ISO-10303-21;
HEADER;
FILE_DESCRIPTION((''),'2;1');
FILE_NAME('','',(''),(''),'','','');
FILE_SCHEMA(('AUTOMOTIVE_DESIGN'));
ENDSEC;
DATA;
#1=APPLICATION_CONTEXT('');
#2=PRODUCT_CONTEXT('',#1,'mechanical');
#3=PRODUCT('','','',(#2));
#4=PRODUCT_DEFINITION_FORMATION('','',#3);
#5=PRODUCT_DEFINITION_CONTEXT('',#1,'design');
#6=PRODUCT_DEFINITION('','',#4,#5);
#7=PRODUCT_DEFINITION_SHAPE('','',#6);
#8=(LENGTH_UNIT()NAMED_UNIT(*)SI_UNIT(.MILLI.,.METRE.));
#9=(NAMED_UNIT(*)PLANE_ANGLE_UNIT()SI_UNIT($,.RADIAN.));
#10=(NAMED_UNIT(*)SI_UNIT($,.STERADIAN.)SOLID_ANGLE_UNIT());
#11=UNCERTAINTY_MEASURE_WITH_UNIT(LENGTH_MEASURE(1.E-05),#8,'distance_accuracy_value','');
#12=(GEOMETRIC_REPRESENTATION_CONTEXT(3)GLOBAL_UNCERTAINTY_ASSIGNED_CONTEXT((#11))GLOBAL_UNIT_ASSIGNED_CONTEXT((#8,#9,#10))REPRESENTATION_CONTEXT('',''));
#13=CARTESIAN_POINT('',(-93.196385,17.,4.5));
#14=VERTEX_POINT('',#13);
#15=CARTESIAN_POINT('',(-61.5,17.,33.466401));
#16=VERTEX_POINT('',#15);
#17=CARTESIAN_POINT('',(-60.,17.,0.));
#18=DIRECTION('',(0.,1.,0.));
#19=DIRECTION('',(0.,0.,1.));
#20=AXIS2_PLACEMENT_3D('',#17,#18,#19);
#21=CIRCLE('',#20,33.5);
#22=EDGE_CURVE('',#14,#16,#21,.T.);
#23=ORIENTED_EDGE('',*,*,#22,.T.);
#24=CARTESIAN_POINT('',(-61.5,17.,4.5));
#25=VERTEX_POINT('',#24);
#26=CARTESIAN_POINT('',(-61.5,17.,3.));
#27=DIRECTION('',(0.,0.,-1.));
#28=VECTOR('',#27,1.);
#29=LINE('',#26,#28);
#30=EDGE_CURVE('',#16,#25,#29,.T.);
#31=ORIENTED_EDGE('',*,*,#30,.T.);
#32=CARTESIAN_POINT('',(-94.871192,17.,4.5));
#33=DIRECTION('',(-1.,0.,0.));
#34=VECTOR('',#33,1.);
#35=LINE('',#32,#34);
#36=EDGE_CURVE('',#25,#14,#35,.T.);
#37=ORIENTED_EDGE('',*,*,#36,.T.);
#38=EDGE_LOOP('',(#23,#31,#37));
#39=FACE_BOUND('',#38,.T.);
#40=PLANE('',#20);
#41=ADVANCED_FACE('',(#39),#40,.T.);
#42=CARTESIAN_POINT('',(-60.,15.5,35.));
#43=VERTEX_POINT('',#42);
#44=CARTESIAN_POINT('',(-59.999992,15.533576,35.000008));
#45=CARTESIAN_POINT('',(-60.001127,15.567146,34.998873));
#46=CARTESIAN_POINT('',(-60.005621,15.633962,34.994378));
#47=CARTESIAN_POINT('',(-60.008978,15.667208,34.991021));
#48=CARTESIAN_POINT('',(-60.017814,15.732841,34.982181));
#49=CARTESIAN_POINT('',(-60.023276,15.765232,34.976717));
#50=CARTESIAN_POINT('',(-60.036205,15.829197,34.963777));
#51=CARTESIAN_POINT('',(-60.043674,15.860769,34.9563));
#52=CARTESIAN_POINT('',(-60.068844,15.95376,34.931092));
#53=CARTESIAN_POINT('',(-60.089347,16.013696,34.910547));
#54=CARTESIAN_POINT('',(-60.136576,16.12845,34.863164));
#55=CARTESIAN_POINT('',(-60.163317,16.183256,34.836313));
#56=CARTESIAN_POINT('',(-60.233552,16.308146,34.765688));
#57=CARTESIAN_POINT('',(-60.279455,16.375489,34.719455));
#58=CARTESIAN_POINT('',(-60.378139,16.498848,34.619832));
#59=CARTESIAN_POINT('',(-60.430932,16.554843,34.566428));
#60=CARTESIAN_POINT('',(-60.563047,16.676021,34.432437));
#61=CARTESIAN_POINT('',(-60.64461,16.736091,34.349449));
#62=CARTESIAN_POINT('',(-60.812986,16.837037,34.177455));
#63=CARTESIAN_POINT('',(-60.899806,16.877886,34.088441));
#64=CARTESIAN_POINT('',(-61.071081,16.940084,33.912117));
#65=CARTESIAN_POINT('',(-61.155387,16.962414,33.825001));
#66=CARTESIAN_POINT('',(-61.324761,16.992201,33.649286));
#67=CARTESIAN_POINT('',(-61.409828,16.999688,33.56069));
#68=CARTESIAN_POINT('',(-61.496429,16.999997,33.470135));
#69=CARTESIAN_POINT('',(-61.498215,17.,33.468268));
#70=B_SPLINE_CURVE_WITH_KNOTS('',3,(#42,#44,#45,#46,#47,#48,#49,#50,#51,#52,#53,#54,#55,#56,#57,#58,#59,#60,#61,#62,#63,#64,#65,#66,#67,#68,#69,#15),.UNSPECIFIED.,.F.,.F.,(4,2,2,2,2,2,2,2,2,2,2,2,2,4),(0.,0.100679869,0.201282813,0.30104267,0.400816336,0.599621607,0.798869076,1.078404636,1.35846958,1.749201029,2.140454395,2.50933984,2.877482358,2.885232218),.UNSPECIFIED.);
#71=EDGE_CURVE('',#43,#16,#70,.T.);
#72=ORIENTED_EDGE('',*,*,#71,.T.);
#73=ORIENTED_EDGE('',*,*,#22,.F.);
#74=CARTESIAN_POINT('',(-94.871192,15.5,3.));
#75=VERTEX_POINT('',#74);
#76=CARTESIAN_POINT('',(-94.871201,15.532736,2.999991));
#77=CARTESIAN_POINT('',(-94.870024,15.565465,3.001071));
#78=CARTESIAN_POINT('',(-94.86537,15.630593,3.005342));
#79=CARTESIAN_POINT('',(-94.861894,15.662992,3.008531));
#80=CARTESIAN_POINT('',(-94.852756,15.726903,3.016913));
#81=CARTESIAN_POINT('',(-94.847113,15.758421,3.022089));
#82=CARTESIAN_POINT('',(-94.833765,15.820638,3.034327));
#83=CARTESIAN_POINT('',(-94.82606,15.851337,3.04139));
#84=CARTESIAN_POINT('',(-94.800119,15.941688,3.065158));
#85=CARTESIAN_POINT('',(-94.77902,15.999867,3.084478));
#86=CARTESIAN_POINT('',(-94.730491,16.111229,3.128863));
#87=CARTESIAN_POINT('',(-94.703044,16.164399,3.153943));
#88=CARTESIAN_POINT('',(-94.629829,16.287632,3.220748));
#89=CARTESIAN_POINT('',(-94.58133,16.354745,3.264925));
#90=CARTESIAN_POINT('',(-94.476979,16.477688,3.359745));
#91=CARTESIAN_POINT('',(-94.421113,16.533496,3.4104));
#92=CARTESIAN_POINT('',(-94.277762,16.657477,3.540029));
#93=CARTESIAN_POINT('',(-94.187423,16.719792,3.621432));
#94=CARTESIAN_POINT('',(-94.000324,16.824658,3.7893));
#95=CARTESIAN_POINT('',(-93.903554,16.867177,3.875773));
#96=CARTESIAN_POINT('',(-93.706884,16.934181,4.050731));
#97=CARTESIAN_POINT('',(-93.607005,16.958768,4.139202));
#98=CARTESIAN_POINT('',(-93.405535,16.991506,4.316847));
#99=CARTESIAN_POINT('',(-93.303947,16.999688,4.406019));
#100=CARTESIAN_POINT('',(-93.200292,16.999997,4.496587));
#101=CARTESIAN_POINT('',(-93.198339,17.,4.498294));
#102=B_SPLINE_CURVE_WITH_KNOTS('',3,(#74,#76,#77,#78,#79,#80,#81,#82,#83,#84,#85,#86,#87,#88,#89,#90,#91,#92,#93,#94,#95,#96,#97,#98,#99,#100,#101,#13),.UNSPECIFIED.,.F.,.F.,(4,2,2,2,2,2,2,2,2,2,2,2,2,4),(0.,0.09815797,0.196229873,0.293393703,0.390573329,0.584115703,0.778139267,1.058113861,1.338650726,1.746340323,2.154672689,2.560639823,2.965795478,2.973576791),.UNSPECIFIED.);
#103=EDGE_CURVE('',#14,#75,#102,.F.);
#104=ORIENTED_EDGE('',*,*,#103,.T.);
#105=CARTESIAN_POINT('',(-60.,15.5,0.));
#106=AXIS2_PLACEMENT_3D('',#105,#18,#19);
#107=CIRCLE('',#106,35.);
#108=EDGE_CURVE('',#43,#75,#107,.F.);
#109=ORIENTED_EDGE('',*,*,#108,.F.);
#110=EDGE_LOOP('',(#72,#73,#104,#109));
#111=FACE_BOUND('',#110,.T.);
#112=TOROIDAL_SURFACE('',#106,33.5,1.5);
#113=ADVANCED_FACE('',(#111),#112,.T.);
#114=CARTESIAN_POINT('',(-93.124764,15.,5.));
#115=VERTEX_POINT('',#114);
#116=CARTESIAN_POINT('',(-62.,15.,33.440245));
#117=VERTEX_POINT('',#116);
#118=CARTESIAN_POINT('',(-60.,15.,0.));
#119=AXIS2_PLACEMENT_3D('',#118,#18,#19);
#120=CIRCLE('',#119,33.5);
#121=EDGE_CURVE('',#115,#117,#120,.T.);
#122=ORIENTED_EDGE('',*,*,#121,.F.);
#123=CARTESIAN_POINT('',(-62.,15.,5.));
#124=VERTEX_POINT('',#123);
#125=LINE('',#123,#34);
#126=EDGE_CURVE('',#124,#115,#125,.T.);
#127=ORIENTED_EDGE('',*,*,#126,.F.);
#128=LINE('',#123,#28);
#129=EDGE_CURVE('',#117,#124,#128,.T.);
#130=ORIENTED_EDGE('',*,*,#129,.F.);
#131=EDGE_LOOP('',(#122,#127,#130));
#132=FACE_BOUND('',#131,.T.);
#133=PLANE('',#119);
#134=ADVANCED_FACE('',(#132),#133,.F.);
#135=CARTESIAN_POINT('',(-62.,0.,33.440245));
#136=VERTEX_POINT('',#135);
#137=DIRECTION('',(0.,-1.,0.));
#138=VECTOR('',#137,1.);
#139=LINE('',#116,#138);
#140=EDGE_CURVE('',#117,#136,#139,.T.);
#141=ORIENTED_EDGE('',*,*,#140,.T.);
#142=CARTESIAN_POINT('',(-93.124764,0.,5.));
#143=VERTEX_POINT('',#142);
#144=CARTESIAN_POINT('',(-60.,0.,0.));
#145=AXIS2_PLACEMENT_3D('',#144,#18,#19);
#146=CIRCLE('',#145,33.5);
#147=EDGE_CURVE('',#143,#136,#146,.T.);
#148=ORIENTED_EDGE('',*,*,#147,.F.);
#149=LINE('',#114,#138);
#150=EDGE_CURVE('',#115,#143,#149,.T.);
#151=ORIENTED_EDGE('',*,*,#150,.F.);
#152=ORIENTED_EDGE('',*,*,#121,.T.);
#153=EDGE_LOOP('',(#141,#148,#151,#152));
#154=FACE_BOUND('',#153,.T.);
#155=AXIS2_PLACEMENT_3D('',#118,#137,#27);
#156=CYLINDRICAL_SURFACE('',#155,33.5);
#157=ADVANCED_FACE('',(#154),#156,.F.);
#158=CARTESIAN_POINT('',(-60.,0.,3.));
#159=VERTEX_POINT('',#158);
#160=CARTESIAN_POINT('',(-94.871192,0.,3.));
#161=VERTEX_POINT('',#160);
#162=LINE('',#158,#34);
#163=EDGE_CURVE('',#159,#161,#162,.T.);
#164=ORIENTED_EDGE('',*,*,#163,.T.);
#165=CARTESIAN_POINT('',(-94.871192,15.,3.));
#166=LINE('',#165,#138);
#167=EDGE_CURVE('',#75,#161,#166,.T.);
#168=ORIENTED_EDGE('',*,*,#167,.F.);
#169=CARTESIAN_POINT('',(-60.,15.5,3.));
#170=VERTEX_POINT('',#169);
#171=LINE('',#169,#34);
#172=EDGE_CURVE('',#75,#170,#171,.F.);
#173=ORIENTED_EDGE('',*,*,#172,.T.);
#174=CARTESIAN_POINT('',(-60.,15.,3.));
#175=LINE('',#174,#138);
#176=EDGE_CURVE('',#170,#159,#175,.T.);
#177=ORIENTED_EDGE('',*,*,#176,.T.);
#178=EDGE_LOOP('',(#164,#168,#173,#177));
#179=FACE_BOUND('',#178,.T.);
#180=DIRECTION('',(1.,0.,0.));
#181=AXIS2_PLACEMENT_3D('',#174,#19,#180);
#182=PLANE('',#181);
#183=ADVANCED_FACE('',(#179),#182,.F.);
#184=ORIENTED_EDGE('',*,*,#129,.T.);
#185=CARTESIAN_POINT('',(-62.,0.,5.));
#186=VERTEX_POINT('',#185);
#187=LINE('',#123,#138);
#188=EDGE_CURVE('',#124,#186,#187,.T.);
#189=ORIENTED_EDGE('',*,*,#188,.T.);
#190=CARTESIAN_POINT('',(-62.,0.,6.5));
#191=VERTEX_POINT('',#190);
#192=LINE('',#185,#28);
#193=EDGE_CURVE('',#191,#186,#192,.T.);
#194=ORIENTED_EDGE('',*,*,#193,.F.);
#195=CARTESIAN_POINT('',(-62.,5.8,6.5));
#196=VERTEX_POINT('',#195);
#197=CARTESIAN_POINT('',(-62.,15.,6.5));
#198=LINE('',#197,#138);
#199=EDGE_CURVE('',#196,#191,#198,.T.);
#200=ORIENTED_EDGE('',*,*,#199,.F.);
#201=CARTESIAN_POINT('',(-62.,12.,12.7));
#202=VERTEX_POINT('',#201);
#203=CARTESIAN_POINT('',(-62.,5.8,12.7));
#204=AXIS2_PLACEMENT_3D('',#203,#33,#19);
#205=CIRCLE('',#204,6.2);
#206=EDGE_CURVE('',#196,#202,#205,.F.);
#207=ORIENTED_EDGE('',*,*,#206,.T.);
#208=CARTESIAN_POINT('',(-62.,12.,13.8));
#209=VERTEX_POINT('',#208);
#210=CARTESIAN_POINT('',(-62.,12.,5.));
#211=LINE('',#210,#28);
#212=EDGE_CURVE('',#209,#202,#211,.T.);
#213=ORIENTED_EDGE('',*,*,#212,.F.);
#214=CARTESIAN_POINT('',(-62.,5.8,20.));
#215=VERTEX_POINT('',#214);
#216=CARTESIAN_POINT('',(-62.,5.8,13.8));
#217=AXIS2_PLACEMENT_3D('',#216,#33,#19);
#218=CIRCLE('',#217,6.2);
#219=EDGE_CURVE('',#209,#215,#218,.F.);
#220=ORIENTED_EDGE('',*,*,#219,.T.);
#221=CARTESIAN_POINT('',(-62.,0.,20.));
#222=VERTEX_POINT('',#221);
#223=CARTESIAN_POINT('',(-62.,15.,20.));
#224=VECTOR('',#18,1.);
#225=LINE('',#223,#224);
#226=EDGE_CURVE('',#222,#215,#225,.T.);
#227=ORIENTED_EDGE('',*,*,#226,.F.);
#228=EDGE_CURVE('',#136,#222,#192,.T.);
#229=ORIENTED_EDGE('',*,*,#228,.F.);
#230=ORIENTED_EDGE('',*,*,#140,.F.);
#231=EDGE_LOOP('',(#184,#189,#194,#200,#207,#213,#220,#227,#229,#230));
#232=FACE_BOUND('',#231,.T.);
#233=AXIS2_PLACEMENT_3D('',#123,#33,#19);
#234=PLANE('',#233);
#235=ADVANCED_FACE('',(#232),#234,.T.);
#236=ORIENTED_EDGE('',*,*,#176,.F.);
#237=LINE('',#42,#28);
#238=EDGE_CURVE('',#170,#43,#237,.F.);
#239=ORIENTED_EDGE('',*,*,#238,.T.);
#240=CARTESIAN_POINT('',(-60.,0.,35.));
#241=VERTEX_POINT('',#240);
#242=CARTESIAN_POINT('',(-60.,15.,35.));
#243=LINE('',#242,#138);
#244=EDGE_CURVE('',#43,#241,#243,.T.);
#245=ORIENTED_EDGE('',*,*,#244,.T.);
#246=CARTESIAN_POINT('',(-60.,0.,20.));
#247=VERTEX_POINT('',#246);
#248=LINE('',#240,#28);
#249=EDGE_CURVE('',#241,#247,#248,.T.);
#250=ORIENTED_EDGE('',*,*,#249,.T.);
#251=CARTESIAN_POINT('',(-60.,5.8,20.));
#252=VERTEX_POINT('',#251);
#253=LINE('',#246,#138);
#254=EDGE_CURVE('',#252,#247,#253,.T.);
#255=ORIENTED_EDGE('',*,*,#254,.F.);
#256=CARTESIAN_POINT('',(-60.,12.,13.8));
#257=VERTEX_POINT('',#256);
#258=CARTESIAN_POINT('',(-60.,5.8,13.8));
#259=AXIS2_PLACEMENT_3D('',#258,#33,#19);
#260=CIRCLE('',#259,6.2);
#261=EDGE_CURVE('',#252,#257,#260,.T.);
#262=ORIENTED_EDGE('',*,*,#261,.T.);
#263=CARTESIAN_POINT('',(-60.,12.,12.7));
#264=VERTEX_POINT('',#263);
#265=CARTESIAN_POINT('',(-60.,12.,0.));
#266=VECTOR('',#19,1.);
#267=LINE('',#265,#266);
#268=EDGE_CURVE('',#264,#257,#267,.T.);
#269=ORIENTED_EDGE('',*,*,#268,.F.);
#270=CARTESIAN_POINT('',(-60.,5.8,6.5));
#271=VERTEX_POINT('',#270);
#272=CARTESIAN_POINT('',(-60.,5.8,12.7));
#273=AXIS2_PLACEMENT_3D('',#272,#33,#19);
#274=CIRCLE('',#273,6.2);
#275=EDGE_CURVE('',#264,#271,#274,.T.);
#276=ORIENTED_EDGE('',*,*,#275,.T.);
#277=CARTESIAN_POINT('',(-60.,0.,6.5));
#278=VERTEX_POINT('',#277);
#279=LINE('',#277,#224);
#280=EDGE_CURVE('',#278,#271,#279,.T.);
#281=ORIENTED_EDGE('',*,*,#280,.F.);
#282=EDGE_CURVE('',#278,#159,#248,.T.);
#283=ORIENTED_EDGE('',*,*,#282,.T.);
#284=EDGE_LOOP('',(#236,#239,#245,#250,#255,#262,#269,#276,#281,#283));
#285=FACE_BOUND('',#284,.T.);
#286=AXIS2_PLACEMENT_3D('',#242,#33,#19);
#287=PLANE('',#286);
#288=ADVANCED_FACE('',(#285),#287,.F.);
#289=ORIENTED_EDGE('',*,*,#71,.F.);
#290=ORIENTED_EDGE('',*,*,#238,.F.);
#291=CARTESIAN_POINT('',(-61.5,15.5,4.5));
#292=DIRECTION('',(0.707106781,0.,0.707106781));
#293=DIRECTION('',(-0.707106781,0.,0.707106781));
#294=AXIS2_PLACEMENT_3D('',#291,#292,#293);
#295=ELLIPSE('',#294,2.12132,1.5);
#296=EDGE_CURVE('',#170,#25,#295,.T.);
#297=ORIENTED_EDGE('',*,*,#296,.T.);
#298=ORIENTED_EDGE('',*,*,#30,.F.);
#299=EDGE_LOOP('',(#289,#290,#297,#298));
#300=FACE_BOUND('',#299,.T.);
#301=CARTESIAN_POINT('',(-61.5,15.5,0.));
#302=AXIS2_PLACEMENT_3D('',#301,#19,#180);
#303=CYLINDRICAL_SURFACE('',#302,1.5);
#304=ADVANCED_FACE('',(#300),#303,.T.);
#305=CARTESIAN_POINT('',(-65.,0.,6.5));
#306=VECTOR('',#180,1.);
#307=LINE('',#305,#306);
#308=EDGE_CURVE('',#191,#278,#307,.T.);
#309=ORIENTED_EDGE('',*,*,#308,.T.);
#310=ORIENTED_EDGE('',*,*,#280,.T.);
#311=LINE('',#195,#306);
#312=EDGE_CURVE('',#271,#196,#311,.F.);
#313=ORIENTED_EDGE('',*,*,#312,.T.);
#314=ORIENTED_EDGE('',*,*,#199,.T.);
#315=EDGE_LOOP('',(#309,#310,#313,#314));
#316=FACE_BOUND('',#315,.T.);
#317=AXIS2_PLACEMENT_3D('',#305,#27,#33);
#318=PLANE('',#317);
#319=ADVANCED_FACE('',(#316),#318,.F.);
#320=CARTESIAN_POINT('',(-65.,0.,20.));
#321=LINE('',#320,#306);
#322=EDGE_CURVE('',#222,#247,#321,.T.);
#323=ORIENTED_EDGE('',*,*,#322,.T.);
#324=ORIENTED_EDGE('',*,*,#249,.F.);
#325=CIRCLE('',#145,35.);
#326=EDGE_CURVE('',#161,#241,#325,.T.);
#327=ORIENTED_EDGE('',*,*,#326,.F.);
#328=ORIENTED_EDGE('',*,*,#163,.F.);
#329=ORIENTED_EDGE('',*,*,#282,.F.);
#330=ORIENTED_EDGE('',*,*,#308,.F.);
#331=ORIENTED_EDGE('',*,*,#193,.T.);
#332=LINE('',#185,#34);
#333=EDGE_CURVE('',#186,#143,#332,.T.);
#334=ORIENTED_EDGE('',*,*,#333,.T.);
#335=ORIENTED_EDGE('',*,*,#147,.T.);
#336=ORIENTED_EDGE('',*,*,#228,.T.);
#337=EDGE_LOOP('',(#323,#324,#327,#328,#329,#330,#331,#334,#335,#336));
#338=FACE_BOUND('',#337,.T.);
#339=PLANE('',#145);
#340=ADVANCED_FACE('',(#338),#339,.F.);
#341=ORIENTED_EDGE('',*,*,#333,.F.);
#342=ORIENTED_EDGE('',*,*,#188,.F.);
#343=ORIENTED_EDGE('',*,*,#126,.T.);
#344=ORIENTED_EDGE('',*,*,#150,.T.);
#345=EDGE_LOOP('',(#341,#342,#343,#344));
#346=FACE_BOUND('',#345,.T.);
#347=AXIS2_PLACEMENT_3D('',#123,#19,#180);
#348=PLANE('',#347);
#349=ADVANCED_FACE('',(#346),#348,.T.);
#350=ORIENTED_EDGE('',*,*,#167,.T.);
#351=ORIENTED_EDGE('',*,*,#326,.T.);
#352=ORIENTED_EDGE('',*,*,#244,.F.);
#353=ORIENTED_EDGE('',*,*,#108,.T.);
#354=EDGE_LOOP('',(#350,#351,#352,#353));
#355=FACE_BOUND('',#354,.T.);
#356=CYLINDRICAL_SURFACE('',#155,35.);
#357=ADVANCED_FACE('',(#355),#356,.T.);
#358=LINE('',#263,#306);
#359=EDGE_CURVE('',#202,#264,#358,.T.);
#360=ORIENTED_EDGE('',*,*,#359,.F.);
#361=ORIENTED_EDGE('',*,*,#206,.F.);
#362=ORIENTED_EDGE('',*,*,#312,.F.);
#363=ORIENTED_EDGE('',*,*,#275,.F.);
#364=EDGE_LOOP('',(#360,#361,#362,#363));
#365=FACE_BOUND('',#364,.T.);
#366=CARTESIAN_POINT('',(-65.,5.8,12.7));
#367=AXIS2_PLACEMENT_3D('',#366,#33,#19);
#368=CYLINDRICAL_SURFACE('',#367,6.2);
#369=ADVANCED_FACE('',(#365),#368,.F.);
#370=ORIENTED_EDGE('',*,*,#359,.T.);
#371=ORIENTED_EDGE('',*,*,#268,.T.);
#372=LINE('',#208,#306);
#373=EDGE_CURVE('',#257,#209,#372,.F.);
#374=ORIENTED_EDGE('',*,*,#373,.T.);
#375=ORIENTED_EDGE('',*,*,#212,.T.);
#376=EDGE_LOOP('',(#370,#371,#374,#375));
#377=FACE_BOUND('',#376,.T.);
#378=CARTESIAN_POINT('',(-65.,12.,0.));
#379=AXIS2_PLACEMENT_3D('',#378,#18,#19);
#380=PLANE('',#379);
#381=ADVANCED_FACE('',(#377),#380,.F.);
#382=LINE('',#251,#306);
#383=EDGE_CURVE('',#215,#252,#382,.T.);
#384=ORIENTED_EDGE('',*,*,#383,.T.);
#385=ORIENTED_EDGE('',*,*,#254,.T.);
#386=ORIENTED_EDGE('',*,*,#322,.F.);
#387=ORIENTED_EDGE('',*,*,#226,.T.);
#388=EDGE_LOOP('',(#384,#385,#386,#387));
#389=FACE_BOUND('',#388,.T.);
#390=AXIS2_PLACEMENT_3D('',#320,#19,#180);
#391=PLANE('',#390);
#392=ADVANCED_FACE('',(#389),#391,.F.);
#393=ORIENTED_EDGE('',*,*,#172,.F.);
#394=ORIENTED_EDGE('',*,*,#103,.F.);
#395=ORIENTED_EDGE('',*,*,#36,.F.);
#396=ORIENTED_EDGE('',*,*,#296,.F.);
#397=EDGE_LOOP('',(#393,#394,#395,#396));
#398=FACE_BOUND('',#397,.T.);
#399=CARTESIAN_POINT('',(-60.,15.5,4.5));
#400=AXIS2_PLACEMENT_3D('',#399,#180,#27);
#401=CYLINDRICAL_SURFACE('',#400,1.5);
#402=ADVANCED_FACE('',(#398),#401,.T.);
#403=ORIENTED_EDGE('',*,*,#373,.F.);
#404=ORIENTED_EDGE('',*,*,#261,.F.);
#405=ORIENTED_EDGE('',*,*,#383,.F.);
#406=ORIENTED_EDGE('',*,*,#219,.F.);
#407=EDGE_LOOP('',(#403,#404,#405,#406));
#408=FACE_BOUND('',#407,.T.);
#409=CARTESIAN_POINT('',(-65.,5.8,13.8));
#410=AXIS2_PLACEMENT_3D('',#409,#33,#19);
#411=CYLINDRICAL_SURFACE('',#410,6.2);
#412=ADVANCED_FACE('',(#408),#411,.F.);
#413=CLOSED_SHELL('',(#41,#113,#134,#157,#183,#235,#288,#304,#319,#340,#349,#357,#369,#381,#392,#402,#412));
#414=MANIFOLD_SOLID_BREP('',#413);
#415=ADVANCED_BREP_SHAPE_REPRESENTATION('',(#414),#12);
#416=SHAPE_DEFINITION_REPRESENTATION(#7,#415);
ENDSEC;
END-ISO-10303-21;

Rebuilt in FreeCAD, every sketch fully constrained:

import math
import FreeCAD as App
import Part
import Sketcher
from FreeCAD import Vector


def edges_at(feature, points):
    """Names of the edges that pass closest to the given points."""
    edges = feature.Shape.Edges
    near = lambda p: min(range(len(edges)), key=lambda i: edges[i].distToShape(Part.Vertex(*p))[0])
    return sorted({f"Edge{near(p) + 1}" for p in points})


def add_polygon(sketch, points):
    """Adds a closed chain of lines whose ends are joined by coincident constraints."""
    first, n = sketch.GeometryCount, len(points)
    for a, b in zip(points, points[1:] + points[:1]):
        sketch.addGeometry(Part.LineSegment(App.Vector(*a, 0), App.Vector(*b, 0)), False)
    for i in range(n):
        sketch.addConstraint(Sketcher.Constraint("Coincident", first + i, 2, first + (i + 1) % n, 1))

doc = App.newDocument("Part")
body = doc.addObject("PartDesign::Body", "Body")

# Sketch on XZ plane
sketch1 = body.newObject("Sketcher::SketchObject", "Sketch")
sketch1.AttachmentSupport = (doc.getObject("XZ_Plane"), [""])
sketch1.MapMode = "FlatFace"
sketch1.addGeometry([
    Part.LineSegment(Vector(-60, 3, 0), Vector(-95, 3, 0)),  # 0
    Part.ArcOfCircle(Part.Circle(Vector(-60, 0, 0), Vector(0, 0, 1), 35), math.radians(90), math.radians(175)),  # 1
    Part.LineSegment(Vector(-60, 35, 0), Vector(-60, 3, 0)),  # 2
    Part.LineSegment(Vector(-93, 5, 0), Vector(-62, 5, 0)),  # 3
    Part.LineSegment(Vector(-62, 5, 0), Vector(-62, 33, 0)),  # 4
    Part.ArcOfCircle(Part.Circle(Vector(-60, 0, 0), Vector(0, 0, 1), 33), math.radians(93), math.radians(171)),  # 5
], False)
sketch1.addConstraint([
    Sketcher.Constraint("Coincident", 0, 2, 1, 2),
    Sketcher.Constraint("Coincident", 1, 1, 2, 1),
    Sketcher.Constraint("Coincident", 2, 2, 0, 1),
    Sketcher.Constraint("Coincident", 3, 2, 4, 1),
    Sketcher.Constraint("Coincident", 4, 2, 5, 1),
    Sketcher.Constraint("Coincident", 5, 2, 3, 1),
    Sketcher.Constraint("Horizontal", 0),
    Sketcher.Constraint("Vertical", 2),
    Sketcher.Constraint("Horizontal", 3),
    Sketcher.Constraint("Vertical", 4),
    Sketcher.Constraint("Coincident", 5, 3, 1, 3),
    Sketcher.Constraint("PointOnObject", 1, 3, -1),
    Sketcher.Constraint("Vertical", 5, 3, 1, 1),
    Sketcher.Constraint("Radius", 1, 35.0),
    Sketcher.Constraint("Radius", 5, 33.5),
    Sketcher.Constraint("DistanceY", 2, 2, 2, 1, 32.0),
    Sketcher.Constraint("DistanceX", 1, 3, -1, 1, 60.0),
    Sketcher.Constraint("DistanceX", 3, 2, -1, 1, 62.0),
    Sketcher.Constraint("DistanceY", -1, 1, 3, 2, 5.0),
])
pad1 = body.newObject("PartDesign::Pad", "Pad")
pad1.Profile = sketch1
pad1.Length = 15
pad1.Reversed = True

# Sketch on XZ plane
sketch2 = body.newObject("Sketcher::SketchObject", "Sketch001")
sketch2.AttachmentSupport = (doc.getObject("XZ_Plane"), [""])
sketch2.MapMode = "FlatFace"
sketch2.AttachmentOffset = App.Placement(Vector(0, 0, -15), App.Rotation())
sketch2.addGeometry([
    Part.LineSegment(Vector(-60, 3, 0), Vector(-95, 3, 0)),
    Part.ArcOfCircle(Part.Circle(Vector(-60, 0, 0), Vector(0, 0, 1), 35), math.radians(90), math.radians(175)),
    Part.LineSegment(Vector(-60, 35, 0), Vector(-60, 3, 0)),
], False)
sketch2.addConstraint([
    Sketcher.Constraint("Coincident", 0, 2, 1, 2),
    Sketcher.Constraint("Coincident", 1, 1, 2, 1),
    Sketcher.Constraint("Coincident", 2, 2, 0, 1),
    Sketcher.Constraint("Horizontal", 0),
    Sketcher.Constraint("Vertical", 2),
    Sketcher.Constraint("PointOnObject", 1, 3, -1),
    Sketcher.Constraint("Radius", 1, 35.0),
    Sketcher.Constraint("DistanceY", 2, 2, 2, 1, 32.0),
    Sketcher.Constraint("DistanceX", 1, 3, -1, 1, 60.0),
    Sketcher.Constraint("DistanceX", 1, 1, -1, 1, 60.0),
])
pad2 = body.newObject("PartDesign::Pad", "Pad001")
pad2.Profile = sketch2
pad2.Length = 2
pad2.Reversed = True
doc.recompute()

fillet = body.newObject("PartDesign::Fillet", "Fillet")
fillet.Base = (pad2, edges_at(pad2, [(-60, 17, 19), (-77.436, 17, 3), (-83.664, 17, 25.788)]))
fillet.Radius = 1.5

# Sketch on YZ plane
sketch3 = body.newObject("Sketcher::SketchObject", "Sketch002")
sketch3.AttachmentSupport = (doc.getObject("YZ_Plane"), [""])
sketch3.MapMode = "FlatFace"
sketch3.AttachmentOffset = App.Placement(Vector(0, 0, -60), App.Rotation())
add_polygon(sketch3, [(12, 20), (0, 20), (0, 6), (12, 6)])  # lines 0-3
sketch3.addConstraint([
    Sketcher.Constraint("Horizontal", 0),
    Sketcher.Constraint("Vertical", 1),
    Sketcher.Constraint("Horizontal", 2),
    Sketcher.Constraint("Vertical", 3),
    Sketcher.Constraint("PointOnObject", 0, 2, -2),
    Sketcher.Constraint("DistanceX", 0, 2, 0, 1, 12.0),
    Sketcher.Constraint("DistanceY", 1, 2, 1, 1, 13.5),
    Sketcher.Constraint("DistanceY", -1, 1, 0, 2, 20.0),
])
pocket1 = body.newObject("PartDesign::Pocket", "Pocket")
pocket1.Profile = sketch3
pocket1.Length = 5
doc.recompute()

fillet2 = body.newObject("PartDesign::Fillet", "Fillet001")
fillet2.Base = (pocket1, edges_at(pocket1, [(-61, 12, 20), (-61, 12, 6.5)]))
fillet2.Radius = 6.2

doc.recompute()
